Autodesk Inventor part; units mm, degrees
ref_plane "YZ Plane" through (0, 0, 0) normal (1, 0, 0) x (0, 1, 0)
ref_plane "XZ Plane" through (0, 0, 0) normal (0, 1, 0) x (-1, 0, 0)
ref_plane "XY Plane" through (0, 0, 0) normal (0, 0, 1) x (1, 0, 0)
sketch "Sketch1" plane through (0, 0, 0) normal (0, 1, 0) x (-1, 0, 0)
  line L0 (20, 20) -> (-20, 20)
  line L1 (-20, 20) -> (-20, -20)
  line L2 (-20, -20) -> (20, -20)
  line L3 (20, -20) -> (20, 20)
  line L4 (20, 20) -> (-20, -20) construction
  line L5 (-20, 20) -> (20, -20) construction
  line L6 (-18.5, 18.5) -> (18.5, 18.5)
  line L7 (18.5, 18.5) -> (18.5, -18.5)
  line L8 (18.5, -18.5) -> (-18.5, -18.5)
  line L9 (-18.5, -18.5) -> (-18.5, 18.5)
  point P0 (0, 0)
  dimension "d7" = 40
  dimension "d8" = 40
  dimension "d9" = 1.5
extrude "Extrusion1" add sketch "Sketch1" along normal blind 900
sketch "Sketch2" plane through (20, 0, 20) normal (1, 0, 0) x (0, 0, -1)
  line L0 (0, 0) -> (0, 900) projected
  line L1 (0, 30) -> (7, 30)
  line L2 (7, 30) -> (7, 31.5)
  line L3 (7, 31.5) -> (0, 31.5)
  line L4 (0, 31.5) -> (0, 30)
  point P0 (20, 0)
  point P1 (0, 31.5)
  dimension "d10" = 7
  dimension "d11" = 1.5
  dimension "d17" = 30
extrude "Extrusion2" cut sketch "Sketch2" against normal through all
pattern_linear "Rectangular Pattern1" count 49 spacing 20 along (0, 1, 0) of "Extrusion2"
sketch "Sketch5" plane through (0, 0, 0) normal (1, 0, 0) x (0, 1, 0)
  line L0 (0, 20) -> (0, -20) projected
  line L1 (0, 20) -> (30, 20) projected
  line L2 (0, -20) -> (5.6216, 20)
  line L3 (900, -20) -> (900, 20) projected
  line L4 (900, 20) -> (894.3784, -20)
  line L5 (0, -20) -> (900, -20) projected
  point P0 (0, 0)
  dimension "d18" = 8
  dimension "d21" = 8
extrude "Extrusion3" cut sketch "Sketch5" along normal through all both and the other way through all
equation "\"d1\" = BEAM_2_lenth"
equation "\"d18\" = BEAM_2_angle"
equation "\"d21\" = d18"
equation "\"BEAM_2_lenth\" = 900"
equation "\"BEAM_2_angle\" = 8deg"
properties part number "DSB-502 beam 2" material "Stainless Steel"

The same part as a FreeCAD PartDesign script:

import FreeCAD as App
import Part
import Sketcher

V = App.Vector
Q = App.Units.Quantity

doc = App.newDocument("Part")
body = doc.addObject("PartDesign::Body", "Body")

sketch1 = body.newObject("Sketcher::SketchObject", "Sketch")
sketch1.AttachmentSupport = (doc.getObject("XZ_Plane"), [""])
sketch1.MapMode = "FlatFace"
sketch1.addGeometry(Part.LineSegment(V(-20, -20, 0), V(-20, 20, 0)), False)
sketch1.addGeometry(Part.LineSegment(V(-20, 20, 0), V(20, 20, 0)), False)
sketch1.addGeometry(Part.LineSegment(V(20, 20, 0), V(20, -20, 0)), False)
sketch1.addGeometry(Part.LineSegment(V(20, -20, 0), V(-20, -20, 0)), False)
sketch1.addGeometry(Part.LineSegment(V(18, -18, 0), V(18, 18, 0)), False)
sketch1.addGeometry(Part.LineSegment(V(18, 18, 0), V(-18, 18, 0)), False)
sketch1.addGeometry(Part.LineSegment(V(-18, 18, 0), V(-18, -18, 0)), False)
sketch1.addGeometry(Part.LineSegment(V(-18, -18, 0), V(18, -18, 0)), False)
sketch1.addConstraint(Sketcher.Constraint("Coincident", 0, 2, 1, 1))
sketch1.addConstraint(Sketcher.Constraint("Coincident", 1, 2, 2, 1))
sketch1.addConstraint(Sketcher.Constraint("Coincident", 2, 2, 3, 1))
sketch1.addConstraint(Sketcher.Constraint("Coincident", 3, 2, 0, 1))
sketch1.addConstraint(Sketcher.Constraint("Coincident", 4, 2, 5, 1))
sketch1.addConstraint(Sketcher.Constraint("Coincident", 5, 2, 6, 1))
sketch1.addConstraint(Sketcher.Constraint("Coincident", 6, 2, 7, 1))
sketch1.addConstraint(Sketcher.Constraint("Coincident", 7, 2, 4, 1))
sketch1.addConstraint(Sketcher.Constraint("Vertical", 0))
sketch1.addConstraint(Sketcher.Constraint("Horizontal", 1))
sketch1.addConstraint(Sketcher.Constraint("Vertical", 2))
sketch1.addConstraint(Sketcher.Constraint("Horizontal", 3))
sketch1.addConstraint(Sketcher.Constraint("Vertical", 4))
sketch1.addConstraint(Sketcher.Constraint("Horizontal", 5))
sketch1.addConstraint(Sketcher.Constraint("Vertical", 6))
sketch1.addConstraint(Sketcher.Constraint("Horizontal", 7))
sketch1.addConstraint(Sketcher.Constraint("Symmetric", 0, 2, 2, 2, -1, 1))
sketch1.addConstraint(Sketcher.Constraint("Symmetric", 4, 2, 6, 2, -1, 1))
sketch1.addConstraint(Sketcher.Constraint("Equal", 3, 0))
sketch1.addConstraint(Sketcher.Constraint("Equal", 7, 4))
sketch1.addConstraint(Sketcher.Constraint("DistanceX", 1, 1, 1, 2, Q("40 mm")))
sketch1.addConstraint(Sketcher.Constraint("DistanceX", 4, 2, 1, 2, Q("1.5 mm")))
pad1 = body.newObject("PartDesign::Pad", "Pad")
pad1.Profile = sketch1
pad1.Length = 900
pad1.Reversed = True

sketch2 = body.newObject("Sketcher::SketchObject", "Sketch001")
sketch2.AttachmentSupport = (doc.getObject("YZ_Plane"), [""])
sketch2.MapMode = "FlatFace"
sketch2.AttachmentOffset = App.Placement(V(0, 0, 20), App.Rotation())
sketch2.addGeometry(Part.LineSegment(V(31.5, 20, 0), V(30, 20, 0)), False)
sketch2.addGeometry(Part.LineSegment(V(30, 20, 0), V(30, 13, 0)), False)
sketch2.addGeometry(Part.LineSegment(V(30, 13, 0), V(31.5, 13, 0)), False)
sketch2.addGeometry(Part.LineSegment(V(31.5, 13, 0), V(31.5, 20, 0)), False)
sketch2.addConstraint(Sketcher.Constraint("Coincident", 0, 2, 1, 1))
sketch2.addConstraint(Sketcher.Constraint("Coincident", 1, 2, 2, 1))
sketch2.addConstraint(Sketcher.Constraint("Coincident", 2, 2, 3, 1))
sketch2.addConstraint(Sketcher.Constraint("Coincident", 3, 2, 0, 1))
sketch2.addConstraint(Sketcher.Constraint("Horizontal", 0))
sketch2.addConstraint(Sketcher.Constraint("Vertical", 1))
sketch2.addConstraint(Sketcher.Constraint("Horizontal", 2))
sketch2.addConstraint(Sketcher.Constraint("Vertical", 3))
sketch2.addConstraint(Sketcher.Constraint("DistanceY", 1, 2, 1, 1, Q("7 mm")))
sketch2.addConstraint(Sketcher.Constraint("DistanceX", 0, 2, 0, 1, Q("1.5 mm")))
sketch2.addConstraint(Sketcher.Constraint("DistanceX", -1, 1, 0, 2, Q("30 mm")))
sketch2.addConstraint(Sketcher.Constraint("DistanceY", -1, 1, 0, 2, Q("20 mm")))
pocket1 = body.newObject("PartDesign::Pocket", "Pocket")
pocket1.Profile = sketch2
pocket1.Type = "ThroughAll"
doc.recompute()

linearpattern = body.newObject("PartDesign::LinearPattern", "LinearPattern")
linearpattern.Originals = [pocket1]
linearpattern.Direction = (doc.getObject("Y_Axis"), [""])
linearpattern.Mode = "offset"
linearpattern.Offset = 20
linearpattern.Occurrences = 49
body.Tip = linearpattern

sketch3 = body.newObject("Sketcher::SketchObject", "Sketch002")
sketch3.AttachmentSupport = (doc.getObject("YZ_Plane"), [""])
sketch3.MapMode = "FlatFace"
sketch3.addGeometry(Part.LineSegment(V(6, 20, 0), V(0, 20, 0)), False)
sketch3.addGeometry(Part.LineSegment(V(0, 20, 0), V(0, -20, 0)), False)
sketch3.addGeometry(Part.LineSegment(V(0, -20, 0), V(6, 20, 0)), False)
sketch3.addGeometry(Part.LineSegment(V(900, 20, 0), V(894, -20, 0)), False)
sketch3.addGeometry(Part.LineSegment(V(894, -20, 0), V(900, -20, 0)), False)
sketch3.addGeometry(Part.LineSegment(V(900, -20, 0), V(900, 20, 0)), False)
sketch3.addConstraint(Sketcher.Constraint("Coincident", 0, 2, 1, 1))
sketch3.addConstraint(Sketcher.Constraint("Coincident", 1, 2, 2, 1))
sketch3.addConstraint(Sketcher.Constraint("Coincident", 2, 2, 0, 1))
sketch3.addConstraint(Sketcher.Constraint("Coincident", 3, 2, 4, 1))
sketch3.addConstraint(Sketcher.Constraint("Coincident", 4, 2, 5, 1))
sketch3.addConstraint(Sketcher.Constraint("Coincident", 5, 2, 3, 1))
sketch3.addConstraint(Sketcher.Constraint("Horizontal", 0))
sketch3.addConstraint(Sketcher.Constraint("Vertical", 1))
sketch3.addConstraint(Sketcher.Constraint("Horizontal", 4))
sketch3.addConstraint(Sketcher.Constraint("Vertical", 5))
sketch3.addConstraint(Sketcher.Constraint("Symmetric", 0, 2, 1, 2, -1, 1))
sketch3.addConstraint(Sketcher.Constraint("Parallel", 2, 3))
sketch3.addConstraint(Sketcher.Constraint("Horizontal", 1, 2, 3, 2))
sketch3.addConstraint(Sketcher.Constraint("Horizontal", 2, 2, 5, 2))
sketch3.addConstraint(Sketcher.Constraint("DistanceY", 1, 2, 1, 1, Q("40 mm")))
sketch3.addConstraint(Sketcher.Constraint("Angle", 2, Q("82 deg")))
sketch3.addConstraint(Sketcher.Constraint("DistanceX", -1, 1, 4, 2, Q("900 mm")))
pocket2 = body.newObject("PartDesign::Pocket", "Pocket001")
pocket2.Profile = sketch3
pocket2.Type = "ThroughAll"
pocket2.Midplane = True

doc.recompute()
